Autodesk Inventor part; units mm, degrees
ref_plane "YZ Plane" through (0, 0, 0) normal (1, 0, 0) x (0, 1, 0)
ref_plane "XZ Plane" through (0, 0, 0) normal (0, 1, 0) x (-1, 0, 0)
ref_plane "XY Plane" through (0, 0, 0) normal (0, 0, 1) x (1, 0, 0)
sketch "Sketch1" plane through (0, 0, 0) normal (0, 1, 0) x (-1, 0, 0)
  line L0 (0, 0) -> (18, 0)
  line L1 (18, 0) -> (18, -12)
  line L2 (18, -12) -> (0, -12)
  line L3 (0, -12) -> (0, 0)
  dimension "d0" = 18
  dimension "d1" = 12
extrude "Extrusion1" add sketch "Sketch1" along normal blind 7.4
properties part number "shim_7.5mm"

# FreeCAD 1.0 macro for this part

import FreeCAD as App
import Part
import Sketcher

V = App.Vector

doc = App.newDocument("Part")
body = doc.addObject("PartDesign::Body", "Body")

sketch1 = doc.addObject("Sketcher::SketchObject", "Sketch")
body.addObject(sketch1)
sketch1.AttachmentSupport = (doc.XZ_Plane, [""])
sketch1.MapMode = "FlatFace"
sketch1.addGeometry(Part.LineSegment(V(-18, 0, 0), V(0, 0, 0)), False)
sketch1.addGeometry(Part.LineSegment(V(0, 0, 0), V(0, -12, 0)), False)
sketch1.addGeometry(Part.LineSegment(V(0, -12, 0), V(-18, -12, 0)), False)
sketch1.addGeometry(Part.LineSegment(V(-18, -12, 0), V(-18, 0, 0)), False)
sketch1.addConstraint(Sketcher.Constraint("Coincident", 0, 2, 1, 1))
sketch1.addConstraint(Sketcher.Constraint("Coincident", 1, 2, 2, 1))
sketch1.addConstraint(Sketcher.Constraint("Coincident", 2, 2, 3, 1))
sketch1.addConstraint(Sketcher.Constraint("Coincident", 3, 2, 0, 1))
sketch1.addConstraint(Sketcher.Constraint("Horizontal", 0))
sketch1.addConstraint(Sketcher.Constraint("Vertical", 1))
sketch1.addConstraint(Sketcher.Constraint("Horizontal", 2))
sketch1.addConstraint(Sketcher.Constraint("Vertical", 3))
sketch1.addConstraint(Sketcher.Constraint("Coincident", 0, 2, -1, 1))
sketch1.addConstraint(Sketcher.Constraint("DistanceX", 0, 1, 0, 2, 18.0))
sketch1.addConstraint(Sketcher.Constraint("DistanceY", 1, 2, 1, 1, 12.0))
pad1 = doc.addObject("PartDesign::Pad", "Pad")
body.addObject(pad1)
pad1.Profile = sketch1
pad1.Length = 7.4
pad1.Reversed = True

doc.recompute()
